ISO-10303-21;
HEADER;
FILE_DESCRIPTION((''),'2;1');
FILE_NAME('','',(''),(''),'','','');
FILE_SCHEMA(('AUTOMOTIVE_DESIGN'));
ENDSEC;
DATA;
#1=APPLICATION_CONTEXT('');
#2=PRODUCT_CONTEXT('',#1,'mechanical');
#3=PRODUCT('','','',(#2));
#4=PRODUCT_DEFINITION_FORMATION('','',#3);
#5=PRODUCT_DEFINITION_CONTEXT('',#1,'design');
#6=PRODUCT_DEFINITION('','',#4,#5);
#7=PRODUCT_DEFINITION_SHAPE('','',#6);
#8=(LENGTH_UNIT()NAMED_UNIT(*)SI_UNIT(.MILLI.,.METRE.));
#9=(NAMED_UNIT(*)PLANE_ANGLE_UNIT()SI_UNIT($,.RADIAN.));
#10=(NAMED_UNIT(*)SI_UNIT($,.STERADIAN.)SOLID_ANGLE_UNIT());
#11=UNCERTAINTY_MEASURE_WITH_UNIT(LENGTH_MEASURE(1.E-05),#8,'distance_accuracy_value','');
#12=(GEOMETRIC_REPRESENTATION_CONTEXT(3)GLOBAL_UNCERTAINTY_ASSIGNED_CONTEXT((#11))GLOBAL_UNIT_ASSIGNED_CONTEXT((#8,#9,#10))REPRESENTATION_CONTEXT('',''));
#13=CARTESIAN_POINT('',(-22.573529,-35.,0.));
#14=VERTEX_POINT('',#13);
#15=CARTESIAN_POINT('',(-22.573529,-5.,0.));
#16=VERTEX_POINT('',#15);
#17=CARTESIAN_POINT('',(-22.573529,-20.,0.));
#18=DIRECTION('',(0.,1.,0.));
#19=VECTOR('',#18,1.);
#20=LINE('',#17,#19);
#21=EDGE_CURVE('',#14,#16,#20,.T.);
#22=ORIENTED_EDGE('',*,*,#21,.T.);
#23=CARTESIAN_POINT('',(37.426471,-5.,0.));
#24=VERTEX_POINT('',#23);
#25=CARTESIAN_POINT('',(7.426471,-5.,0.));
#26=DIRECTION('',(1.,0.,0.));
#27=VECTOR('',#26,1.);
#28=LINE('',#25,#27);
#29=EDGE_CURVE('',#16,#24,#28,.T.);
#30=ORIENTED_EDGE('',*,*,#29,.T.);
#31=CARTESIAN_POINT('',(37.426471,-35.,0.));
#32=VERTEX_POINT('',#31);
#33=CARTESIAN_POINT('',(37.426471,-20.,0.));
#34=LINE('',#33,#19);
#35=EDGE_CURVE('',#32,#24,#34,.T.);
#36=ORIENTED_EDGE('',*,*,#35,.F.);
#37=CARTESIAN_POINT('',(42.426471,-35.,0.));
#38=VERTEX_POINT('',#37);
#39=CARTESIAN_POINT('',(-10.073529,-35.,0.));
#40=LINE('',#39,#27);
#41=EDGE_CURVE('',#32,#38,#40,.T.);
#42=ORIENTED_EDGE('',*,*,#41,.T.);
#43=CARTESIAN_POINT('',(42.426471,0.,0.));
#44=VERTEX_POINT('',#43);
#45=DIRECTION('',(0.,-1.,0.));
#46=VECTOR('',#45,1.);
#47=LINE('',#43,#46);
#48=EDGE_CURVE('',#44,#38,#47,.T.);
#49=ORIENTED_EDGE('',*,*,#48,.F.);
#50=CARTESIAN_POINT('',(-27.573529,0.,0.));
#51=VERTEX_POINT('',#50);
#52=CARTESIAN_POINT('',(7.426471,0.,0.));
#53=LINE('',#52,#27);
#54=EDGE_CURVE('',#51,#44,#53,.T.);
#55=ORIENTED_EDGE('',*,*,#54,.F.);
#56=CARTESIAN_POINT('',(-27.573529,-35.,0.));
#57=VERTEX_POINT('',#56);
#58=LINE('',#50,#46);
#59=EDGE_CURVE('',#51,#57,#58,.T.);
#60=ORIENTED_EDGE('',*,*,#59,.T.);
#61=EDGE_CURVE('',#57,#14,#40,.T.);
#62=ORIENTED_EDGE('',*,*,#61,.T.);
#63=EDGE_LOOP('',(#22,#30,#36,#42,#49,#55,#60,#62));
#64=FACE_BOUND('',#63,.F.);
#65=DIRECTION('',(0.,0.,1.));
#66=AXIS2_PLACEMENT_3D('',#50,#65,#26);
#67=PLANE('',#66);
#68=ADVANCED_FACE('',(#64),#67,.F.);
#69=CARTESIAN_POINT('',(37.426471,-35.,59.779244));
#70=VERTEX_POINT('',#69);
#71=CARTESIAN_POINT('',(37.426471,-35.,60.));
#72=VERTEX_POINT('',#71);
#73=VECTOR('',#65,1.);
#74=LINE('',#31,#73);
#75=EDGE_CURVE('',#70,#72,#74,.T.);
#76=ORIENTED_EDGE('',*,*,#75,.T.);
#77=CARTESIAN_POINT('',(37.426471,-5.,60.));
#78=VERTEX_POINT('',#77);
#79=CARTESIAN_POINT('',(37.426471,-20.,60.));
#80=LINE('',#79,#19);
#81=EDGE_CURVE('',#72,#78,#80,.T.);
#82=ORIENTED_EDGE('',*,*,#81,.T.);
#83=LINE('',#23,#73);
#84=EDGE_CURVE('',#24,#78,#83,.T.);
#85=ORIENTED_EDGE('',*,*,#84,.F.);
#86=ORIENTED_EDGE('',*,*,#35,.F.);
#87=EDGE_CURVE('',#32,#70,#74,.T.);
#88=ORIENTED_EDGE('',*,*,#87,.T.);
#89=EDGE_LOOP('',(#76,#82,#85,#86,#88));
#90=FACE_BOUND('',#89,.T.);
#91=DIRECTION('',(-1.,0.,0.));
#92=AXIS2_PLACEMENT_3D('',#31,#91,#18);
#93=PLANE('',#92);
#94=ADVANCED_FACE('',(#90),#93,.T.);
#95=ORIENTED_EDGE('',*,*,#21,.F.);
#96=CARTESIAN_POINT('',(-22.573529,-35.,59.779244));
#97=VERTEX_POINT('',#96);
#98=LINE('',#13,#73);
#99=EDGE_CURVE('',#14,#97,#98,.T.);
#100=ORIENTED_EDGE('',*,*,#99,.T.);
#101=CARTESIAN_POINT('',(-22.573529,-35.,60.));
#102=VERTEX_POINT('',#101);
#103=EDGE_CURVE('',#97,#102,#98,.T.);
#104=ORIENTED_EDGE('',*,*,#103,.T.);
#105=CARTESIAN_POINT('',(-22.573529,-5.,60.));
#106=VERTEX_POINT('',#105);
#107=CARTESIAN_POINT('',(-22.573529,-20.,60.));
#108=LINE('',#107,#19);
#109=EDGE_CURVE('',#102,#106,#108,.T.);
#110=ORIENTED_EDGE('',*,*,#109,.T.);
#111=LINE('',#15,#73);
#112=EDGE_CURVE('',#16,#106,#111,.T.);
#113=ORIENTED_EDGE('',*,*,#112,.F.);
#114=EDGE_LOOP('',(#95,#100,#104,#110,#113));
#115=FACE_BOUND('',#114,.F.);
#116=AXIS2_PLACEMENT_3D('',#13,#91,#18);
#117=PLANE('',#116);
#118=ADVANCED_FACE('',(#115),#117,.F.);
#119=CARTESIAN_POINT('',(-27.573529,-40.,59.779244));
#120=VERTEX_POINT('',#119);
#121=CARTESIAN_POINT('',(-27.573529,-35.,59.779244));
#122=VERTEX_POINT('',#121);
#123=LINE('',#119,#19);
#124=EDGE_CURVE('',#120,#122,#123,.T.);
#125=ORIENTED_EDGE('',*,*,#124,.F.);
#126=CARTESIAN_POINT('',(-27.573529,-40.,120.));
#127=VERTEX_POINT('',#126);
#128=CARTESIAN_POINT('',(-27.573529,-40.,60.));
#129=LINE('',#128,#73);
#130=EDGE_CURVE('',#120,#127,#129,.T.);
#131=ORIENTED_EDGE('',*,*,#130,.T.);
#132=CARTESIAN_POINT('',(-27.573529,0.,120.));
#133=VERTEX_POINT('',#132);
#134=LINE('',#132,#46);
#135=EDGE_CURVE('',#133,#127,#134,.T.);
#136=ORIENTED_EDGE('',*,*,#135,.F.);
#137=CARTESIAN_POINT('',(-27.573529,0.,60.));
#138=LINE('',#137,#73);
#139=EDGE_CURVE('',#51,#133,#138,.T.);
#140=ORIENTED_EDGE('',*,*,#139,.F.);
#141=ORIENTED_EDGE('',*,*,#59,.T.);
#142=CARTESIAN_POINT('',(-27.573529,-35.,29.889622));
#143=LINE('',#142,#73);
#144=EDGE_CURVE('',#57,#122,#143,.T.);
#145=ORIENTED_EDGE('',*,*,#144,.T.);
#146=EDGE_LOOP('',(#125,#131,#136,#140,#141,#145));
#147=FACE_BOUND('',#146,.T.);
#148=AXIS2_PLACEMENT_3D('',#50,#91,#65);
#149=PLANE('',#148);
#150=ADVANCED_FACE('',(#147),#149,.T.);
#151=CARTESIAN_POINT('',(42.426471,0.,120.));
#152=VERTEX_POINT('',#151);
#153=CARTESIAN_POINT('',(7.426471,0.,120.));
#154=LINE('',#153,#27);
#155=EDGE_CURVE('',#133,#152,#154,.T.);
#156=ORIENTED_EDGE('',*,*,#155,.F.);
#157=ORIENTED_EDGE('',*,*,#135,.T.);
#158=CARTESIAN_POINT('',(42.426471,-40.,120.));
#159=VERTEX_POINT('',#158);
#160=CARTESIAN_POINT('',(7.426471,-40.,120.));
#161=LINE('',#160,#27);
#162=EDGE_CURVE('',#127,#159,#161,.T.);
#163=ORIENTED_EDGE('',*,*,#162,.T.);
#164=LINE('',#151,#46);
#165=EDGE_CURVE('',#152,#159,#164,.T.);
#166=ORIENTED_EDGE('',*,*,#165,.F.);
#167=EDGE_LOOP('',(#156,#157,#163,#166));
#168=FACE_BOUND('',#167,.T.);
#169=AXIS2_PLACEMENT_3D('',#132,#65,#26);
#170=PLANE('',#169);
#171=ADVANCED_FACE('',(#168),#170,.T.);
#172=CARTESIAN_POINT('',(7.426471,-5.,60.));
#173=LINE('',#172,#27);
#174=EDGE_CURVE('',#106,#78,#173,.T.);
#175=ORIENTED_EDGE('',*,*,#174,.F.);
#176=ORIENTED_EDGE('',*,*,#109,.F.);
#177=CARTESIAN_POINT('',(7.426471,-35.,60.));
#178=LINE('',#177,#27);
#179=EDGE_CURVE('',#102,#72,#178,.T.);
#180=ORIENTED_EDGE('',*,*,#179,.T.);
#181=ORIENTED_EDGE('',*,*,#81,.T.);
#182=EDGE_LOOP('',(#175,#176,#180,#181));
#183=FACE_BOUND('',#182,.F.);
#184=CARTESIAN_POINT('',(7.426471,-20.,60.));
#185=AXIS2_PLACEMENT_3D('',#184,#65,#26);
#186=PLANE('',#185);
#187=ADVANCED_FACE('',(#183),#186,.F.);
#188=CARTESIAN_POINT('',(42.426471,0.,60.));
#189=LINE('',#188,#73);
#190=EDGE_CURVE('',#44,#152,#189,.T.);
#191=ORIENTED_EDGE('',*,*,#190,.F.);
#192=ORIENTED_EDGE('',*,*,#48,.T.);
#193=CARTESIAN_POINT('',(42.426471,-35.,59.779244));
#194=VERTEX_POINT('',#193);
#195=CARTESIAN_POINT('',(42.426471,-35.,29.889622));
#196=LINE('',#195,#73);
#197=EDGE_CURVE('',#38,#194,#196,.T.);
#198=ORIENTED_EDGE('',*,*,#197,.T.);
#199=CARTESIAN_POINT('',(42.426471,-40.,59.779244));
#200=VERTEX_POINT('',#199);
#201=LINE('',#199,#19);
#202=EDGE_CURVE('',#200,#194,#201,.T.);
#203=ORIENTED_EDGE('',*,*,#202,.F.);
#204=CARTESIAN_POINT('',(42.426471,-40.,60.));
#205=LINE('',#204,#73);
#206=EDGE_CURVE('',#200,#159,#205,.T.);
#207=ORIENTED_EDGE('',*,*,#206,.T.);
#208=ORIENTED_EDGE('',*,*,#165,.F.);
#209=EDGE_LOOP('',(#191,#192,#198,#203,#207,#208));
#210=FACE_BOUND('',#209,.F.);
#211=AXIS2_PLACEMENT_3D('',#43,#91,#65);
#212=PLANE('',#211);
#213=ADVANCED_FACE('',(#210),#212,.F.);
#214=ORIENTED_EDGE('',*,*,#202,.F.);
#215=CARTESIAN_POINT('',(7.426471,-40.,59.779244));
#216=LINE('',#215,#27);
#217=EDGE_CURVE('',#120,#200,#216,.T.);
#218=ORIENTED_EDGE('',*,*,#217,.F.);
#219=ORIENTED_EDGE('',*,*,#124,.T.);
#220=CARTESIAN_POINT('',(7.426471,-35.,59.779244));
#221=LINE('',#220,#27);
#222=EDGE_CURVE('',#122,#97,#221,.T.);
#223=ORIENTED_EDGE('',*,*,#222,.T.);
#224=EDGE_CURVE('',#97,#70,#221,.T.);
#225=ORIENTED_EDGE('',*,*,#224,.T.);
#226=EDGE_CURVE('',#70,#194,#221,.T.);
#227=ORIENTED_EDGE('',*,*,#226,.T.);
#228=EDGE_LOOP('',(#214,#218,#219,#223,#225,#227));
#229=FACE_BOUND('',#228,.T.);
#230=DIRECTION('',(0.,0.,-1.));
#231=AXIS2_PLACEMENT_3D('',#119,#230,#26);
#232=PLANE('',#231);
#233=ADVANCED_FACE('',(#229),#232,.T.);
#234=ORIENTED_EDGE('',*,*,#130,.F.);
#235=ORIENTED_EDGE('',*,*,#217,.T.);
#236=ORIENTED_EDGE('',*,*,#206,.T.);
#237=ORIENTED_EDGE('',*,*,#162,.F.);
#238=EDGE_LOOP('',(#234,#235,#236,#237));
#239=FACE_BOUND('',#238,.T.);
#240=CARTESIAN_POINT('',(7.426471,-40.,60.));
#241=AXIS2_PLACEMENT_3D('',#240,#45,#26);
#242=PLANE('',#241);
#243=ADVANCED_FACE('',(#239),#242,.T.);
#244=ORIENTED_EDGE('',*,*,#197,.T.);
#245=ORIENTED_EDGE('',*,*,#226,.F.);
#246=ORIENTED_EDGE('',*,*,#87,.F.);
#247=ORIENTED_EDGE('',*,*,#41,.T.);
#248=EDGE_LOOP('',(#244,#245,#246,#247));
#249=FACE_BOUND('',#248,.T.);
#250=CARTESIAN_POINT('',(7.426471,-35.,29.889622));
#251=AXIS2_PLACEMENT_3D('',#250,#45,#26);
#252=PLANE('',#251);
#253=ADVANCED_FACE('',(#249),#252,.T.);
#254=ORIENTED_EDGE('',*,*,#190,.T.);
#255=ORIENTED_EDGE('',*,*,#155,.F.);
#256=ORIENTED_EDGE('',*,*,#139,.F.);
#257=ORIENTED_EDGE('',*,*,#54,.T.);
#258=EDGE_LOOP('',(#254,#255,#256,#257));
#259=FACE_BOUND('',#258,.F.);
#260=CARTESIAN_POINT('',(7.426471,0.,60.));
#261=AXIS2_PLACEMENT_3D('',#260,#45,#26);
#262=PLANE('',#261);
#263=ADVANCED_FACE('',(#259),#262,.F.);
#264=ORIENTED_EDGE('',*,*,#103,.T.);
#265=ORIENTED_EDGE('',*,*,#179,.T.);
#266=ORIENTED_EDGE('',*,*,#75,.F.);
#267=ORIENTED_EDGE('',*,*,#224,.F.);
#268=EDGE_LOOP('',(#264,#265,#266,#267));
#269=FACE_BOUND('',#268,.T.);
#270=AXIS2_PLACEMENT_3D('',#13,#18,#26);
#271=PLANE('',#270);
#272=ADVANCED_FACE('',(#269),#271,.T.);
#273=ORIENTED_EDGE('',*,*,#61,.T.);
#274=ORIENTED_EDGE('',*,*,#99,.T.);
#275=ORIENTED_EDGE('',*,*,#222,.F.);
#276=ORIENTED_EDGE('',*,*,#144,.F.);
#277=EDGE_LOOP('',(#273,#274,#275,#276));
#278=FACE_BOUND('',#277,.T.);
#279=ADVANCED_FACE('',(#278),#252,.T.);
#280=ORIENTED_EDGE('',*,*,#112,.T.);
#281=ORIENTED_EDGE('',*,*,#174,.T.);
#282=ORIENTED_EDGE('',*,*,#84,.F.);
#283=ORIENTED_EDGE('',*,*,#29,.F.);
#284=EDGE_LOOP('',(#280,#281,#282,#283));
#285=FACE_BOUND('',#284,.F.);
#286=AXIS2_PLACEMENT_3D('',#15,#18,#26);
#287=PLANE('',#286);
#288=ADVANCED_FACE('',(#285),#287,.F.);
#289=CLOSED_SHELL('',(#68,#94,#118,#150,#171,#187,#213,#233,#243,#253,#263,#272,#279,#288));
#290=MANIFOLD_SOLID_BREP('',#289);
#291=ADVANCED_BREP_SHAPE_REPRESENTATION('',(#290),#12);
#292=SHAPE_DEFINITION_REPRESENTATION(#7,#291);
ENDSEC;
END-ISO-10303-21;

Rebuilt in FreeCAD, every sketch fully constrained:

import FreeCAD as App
import Part
import Sketcher

V = App.Vector

doc = App.newDocument("Part")
params = doc.addObject("Spreadsheet::Sheet", "Params")
for row, (alias, value) in enumerate([
    ("sketch1_width", "70 mm"),
    ("sketch1_height", "120 mm"),
    ("pad1_length", "40 mm"),
    ("sketch2_width", "60 mm"),
    ("sketch2_height", "30 mm"),
    ("pocket1_length", "60 mm"),
    ("sketch3_width", "70 mm"),
    ("pocket2_length", "5 mm"),
], start=1):
    params.set(f"A{row}", alias)
    params.set(f"B{row}", "=" + value)
    params.setAlias(f"B{row}", alias)

body = doc.addObject("PartDesign::Body", "Body")

sketch1 = body.newObject("Sketcher::SketchObject", "Sketch")
sketch1.AttachmentSupport = (doc.getObject("XZ_Plane"), [""])
sketch1.MapMode = "FlatFace"
sketch1.addGeometry([
    Part.LineSegment(V(-27.573529, 120, 0), V(-27.573529, 0, 0)),
    Part.LineSegment(V(-27.573529, 0, 0), V(42.426471, 0, 0)),
    Part.LineSegment(V(42.426471, 0, 0), V(42.426471, 120, 0)),
    Part.LineSegment(V(42.426471, 120, 0), V(-27.573529, 120, 0)),
], False)
sketch1.addConstraint([
    Sketcher.Constraint("Coincident", 0, 2, 1, 1),
    Sketcher.Constraint("Coincident", 1, 2, 2, 1),
    Sketcher.Constraint("Coincident", 2, 2, 3, 1),
    Sketcher.Constraint("Coincident", 3, 2, 0, 1),
    Sketcher.Constraint("Vertical", 0),
    Sketcher.Constraint("Horizontal", 1),
    Sketcher.Constraint("Vertical", 2),
    Sketcher.Constraint("Horizontal", 3),
    Sketcher.Constraint("PointOnObject", 0, 2, -1),
    Sketcher.Constraint("DistanceX", 1, 1, 1, 2, 70.0),
    Sketcher.Constraint("DistanceY", 0, 2, 0, 1, 120.0),
    Sketcher.Constraint("DistanceX", 0, 2, -1, 1, 27.573529),
])
sketch1.setExpression("Constraints[9]", "Params.sketch1_width")
sketch1.setExpression("Constraints[10]", "Params.sketch1_height")
pad1 = body.newObject("PartDesign::Pad", "Pad")
pad1.Profile = sketch1
pad1.setExpression("Length", "Params.pad1_length")

sketch2 = body.newObject("Sketcher::SketchObject", "Sketch001")
sketch2.AttachmentSupport = (doc.getObject("XY_Plane"), [""])
sketch2.MapMode = "FlatFace"
sketch2.addGeometry([
    Part.LineSegment(V(-22.573529, -5, 0), V(-22.573529, -35, 0)),
    Part.LineSegment(V(-22.573529, -35, 0), V(37.426471, -35, 0)),
    Part.LineSegment(V(37.426471, -35, 0), V(37.426471, -5, 0)),
    Part.LineSegment(V(37.426471, -5, 0), V(-22.573529, -5, 0)),
], False)
sketch2.addConstraint([
    Sketcher.Constraint("Coincident", 0, 2, 1, 1),
    Sketcher.Constraint("Coincident", 1, 2, 2, 1),
    Sketcher.Constraint("Coincident", 2, 2, 3, 1),
    Sketcher.Constraint("Coincident", 3, 2, 0, 1),
    Sketcher.Constraint("Vertical", 0),
    Sketcher.Constraint("Horizontal", 1),
    Sketcher.Constraint("Vertical", 2),
    Sketcher.Constraint("Horizontal", 3),
    Sketcher.Constraint("DistanceX", 1, 1, 1, 2, 60.0),
    Sketcher.Constraint("DistanceY", 0, 2, 0, 1, 30.0),
    Sketcher.Constraint("DistanceY", 0, 2, -1, 1, 35.0),
    Sketcher.Constraint("DistanceX", 0, 2, -1, 1, 22.573529),
])
sketch2.setExpression("Constraints[8]", "Params.sketch2_width")
sketch2.setExpression("Constraints[9]", "Params.sketch2_height")
pocket1 = body.newObject("PartDesign::Pocket", "Pocket")
pocket1.Profile = sketch2
pocket1.setExpression("Length", "Params.pocket1_length")
pocket1.Reversed = True

sketch3 = body.newObject("Sketcher::SketchObject", "Sketch002")
sketch3.AttachmentSupport = (doc.getObject("XZ_Plane"), [""])
sketch3.MapMode = "FlatFace"
sketch3.AttachmentOffset = App.Placement(V(0, 0, 40), App.Rotation())
sketch3.addGeometry([
    Part.LineSegment(V(-27.573529, 59.779244, 0), V(-27.573529, 0, 0)),
    Part.LineSegment(V(-27.573529, 0, 0), V(42.426471, 0, 0)),
    Part.LineSegment(V(42.426471, 0, 0), V(42.426471, 59.779244, 0)),
    Part.LineSegment(V(42.426471, 59.779244, 0), V(-27.573529, 59.779244, 0)),
], False)
sketch3.addConstraint([
    Sketcher.Constraint("Coincident", 0, 2, 1, 1),
    Sketcher.Constraint("Coincident", 1, 2, 2, 1),
    Sketcher.Constraint("Coincident", 2, 2, 3, 1),
    Sketcher.Constraint("Coincident", 3, 2, 0, 1),
    Sketcher.Constraint("Vertical", 0),
    Sketcher.Constraint("Horizontal", 1),
    Sketcher.Constraint("Vertical", 2),
    Sketcher.Constraint("Horizontal", 3),
    Sketcher.Constraint("PointOnObject", 0, 2, -1),
    Sketcher.Constraint("DistanceX", 1, 1, 1, 2, 70.0),
    Sketcher.Constraint("DistanceY", 0, 2, 0, 1, 59.779245),
    Sketcher.Constraint("DistanceX", 0, 2, -1, 1, 27.573529),
])
sketch3.setExpression("Constraints[9]", "Params.sketch3_width")
pocket2 = body.newObject("PartDesign::Pocket", "Pocket001")
pocket2.Profile = sketch3
pocket2.setExpression("Length", "Params.pocket2_length")

doc.recompute()
